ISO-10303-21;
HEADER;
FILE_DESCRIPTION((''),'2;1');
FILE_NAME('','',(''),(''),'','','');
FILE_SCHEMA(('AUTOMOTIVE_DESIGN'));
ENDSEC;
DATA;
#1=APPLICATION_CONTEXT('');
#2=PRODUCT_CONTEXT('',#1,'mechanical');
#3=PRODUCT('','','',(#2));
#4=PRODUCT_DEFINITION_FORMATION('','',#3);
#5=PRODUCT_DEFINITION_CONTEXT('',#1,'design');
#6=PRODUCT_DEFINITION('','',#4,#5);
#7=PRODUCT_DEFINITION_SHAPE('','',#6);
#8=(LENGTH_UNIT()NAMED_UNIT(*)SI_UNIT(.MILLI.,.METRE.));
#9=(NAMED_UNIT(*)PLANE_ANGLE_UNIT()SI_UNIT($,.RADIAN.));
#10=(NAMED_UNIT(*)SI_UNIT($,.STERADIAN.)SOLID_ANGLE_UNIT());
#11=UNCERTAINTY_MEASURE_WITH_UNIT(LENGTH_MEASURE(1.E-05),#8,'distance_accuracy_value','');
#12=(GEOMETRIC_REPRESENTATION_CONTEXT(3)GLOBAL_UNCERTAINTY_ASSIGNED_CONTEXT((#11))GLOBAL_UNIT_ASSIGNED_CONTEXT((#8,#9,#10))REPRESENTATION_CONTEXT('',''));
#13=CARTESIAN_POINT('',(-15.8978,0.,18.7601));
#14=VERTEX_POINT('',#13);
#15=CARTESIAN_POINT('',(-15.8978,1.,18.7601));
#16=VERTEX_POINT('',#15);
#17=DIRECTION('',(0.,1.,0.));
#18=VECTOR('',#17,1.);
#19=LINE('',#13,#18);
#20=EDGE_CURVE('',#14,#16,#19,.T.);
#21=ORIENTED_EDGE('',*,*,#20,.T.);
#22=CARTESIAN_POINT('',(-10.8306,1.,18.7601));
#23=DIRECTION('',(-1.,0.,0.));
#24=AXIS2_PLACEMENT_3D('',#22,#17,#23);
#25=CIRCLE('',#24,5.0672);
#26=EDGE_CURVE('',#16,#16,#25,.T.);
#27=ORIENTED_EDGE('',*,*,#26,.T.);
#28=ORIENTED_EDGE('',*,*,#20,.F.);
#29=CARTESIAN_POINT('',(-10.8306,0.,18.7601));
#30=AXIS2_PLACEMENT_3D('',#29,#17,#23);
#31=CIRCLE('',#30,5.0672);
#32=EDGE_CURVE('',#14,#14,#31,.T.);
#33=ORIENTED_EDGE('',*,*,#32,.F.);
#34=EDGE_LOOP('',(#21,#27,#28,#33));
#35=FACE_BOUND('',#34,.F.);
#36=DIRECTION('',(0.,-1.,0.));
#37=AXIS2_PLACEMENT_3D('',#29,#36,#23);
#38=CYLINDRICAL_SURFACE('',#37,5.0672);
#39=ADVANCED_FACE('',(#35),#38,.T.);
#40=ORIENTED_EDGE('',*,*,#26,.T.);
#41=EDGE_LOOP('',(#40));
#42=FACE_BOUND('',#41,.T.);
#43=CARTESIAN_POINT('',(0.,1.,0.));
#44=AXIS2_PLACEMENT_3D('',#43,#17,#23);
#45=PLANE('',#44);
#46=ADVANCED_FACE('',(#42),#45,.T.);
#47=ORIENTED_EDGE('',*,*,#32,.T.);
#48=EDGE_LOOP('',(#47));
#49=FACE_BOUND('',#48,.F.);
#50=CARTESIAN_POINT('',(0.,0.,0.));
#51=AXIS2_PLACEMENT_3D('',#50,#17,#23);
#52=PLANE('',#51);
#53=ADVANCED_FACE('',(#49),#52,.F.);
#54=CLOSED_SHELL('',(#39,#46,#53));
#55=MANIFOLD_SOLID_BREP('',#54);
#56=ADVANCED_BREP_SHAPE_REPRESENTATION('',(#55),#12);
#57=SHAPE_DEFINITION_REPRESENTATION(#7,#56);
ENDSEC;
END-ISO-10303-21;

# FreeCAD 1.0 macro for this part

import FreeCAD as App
import Part
import Sketcher

V = App.Vector

doc = App.newDocument("Part")
params = doc.addObject("Spreadsheet::Sheet", "Params")
for row, (alias, value) in enumerate([
    ("pad1_length", "1 mm"),
], start=1):
    params.set(f"A{row}", alias)
    params.set(f"B{row}", "=" + value)
    params.setAlias(f"B{row}", alias)

body = doc.addObject("PartDesign::Body", "Body")

# Sketch on XZ plane
sketch1 = body.newObject("Sketcher::SketchObject", "Sketch")
sketch1.AttachmentSupport = (doc.getObject("XZ_Plane"), [""])
sketch1.MapMode = "FlatFace"
sketch1.addGeometry(Part.Circle(V(-11, 19, 0), V(0, 0, 1), 5), False)
sketch1.addConstraint([
    Sketcher.Constraint("Diameter", 0, 10.1344),
    Sketcher.Constraint("DistanceY", -1, 1, 0, 3, 18.76),
    Sketcher.Constraint("DistanceX", 0, 3, -1, 1, 10.8306),
])
pad1 = body.newObject("PartDesign::Pad", "Pad")
pad1.Profile = sketch1
pad1.setExpression("Length", "Params.pad1_length")
pad1.Reversed = True

doc.recompute()
